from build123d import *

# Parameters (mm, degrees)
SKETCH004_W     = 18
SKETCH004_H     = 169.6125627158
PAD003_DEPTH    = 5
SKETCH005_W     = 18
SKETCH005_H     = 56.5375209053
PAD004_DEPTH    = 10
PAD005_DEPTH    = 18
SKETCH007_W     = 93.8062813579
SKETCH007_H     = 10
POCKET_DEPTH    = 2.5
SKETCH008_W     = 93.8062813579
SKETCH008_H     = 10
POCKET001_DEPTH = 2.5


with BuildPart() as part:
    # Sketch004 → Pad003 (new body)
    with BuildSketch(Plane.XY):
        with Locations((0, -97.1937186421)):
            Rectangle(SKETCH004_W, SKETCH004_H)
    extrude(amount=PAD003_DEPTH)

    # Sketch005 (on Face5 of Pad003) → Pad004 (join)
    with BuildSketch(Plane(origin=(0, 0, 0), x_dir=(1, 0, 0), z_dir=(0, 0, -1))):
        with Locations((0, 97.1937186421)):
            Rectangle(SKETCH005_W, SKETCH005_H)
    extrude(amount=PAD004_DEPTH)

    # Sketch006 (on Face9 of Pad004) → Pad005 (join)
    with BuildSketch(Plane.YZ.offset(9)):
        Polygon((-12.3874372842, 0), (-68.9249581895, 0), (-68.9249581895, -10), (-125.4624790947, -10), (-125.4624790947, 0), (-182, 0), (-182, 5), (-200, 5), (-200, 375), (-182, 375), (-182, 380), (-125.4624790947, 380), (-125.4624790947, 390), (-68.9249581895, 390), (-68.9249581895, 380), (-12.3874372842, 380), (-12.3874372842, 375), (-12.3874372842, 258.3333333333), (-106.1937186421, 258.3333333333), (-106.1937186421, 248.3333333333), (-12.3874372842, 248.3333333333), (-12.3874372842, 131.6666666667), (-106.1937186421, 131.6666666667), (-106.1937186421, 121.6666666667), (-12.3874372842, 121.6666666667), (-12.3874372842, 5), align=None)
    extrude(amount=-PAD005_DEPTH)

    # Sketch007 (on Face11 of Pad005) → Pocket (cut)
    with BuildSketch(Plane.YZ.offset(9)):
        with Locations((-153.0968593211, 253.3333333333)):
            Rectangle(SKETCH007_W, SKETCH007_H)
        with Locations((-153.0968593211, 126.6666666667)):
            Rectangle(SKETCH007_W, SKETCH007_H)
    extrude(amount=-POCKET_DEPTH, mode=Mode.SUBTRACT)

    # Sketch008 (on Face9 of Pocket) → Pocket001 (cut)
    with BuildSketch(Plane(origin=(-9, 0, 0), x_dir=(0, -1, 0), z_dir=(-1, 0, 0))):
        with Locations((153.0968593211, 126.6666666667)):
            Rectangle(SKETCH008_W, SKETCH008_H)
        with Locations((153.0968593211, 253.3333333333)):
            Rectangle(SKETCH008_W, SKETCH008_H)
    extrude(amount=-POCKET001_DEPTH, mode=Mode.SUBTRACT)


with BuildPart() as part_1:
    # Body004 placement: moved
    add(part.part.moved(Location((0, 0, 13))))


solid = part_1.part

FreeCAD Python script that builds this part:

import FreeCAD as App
import Part
import Sketcher
Q = App.Units.Quantity


def add_polygon(sketch, points):
    """Adds a closed chain of lines whose ends are joined by coincident constraints."""
    first, n = sketch.GeometryCount, len(points)
    for a, b in zip(points, points[1:] + points[:1]):
        sketch.addGeometry(Part.LineSegment(App.Vector(*a, 0), App.Vector(*b, 0)), False)
    for i in range(n):
        sketch.addConstraint(Sketcher.Constraint("Coincident", first + i, 2, first + (i + 1) % n, 1))

doc = App.newDocument("Part")
body = doc.addObject("PartDesign::Body", "Body")

# Sketch on XY plane
sketch1 = body.newObject("Sketcher::SketchObject", "Sketch")
sketch1.AttachmentSupport = (doc.getObject("XY_Plane"), [""])
sketch1.MapMode = "FlatFace"
add_polygon(sketch1, [(-9, -12.387437), (-9, -182), (9, -182), (9, -12.387437)])  # lines 0-3
sketch1.addConstraint(Sketcher.Constraint("Vertical", 0))
sketch1.addConstraint(Sketcher.Constraint("Horizontal", 1))
sketch1.addConstraint(Sketcher.Constraint("Vertical", 2))
sketch1.addConstraint(Sketcher.Constraint("Horizontal", 3))
sketch1.addConstraint(Sketcher.Constraint("DistanceX", 1, 1, 1, 2, Q("18 mm")))
sketch1.addConstraint(Sketcher.Constraint("DistanceX", 0, 2, -1, 1, Q("9 mm")))
sketch1.addConstraint(Sketcher.Constraint("DistanceY", 0, 2, -1, 1, Q("182 mm")))
sketch1.addConstraint(Sketcher.Constraint("DistanceY", 0, 2, 0, 1, Q("169.612563 mm")))
pad1 = body.newObject("PartDesign::Pad", "Pad")
pad1.Profile = sketch1
pad1.Length = 5

# Sketch on XY plane
sketch2 = body.newObject("Sketcher::SketchObject", "Sketch001")
sketch2.AttachmentSupport = (doc.getObject("XY_Plane"), [""])
sketch2.MapMode = "FlatFace"
add_polygon(sketch2, [(-9, -125.462479), (-9, -68.924958), (9, -68.924958), (9, -125.462479)])  # lines 0-3
sketch2.addConstraint(Sketcher.Constraint("Vertical", 0))
sketch2.addConstraint(Sketcher.Constraint("Horizontal", 1))
sketch2.addConstraint(Sketcher.Constraint("Vertical", 2))
sketch2.addConstraint(Sketcher.Constraint("Horizontal", 3))
sketch2.addConstraint(Sketcher.Constraint("DistanceX", 1, 1, 1, 2, Q("18 mm")))
sketch2.addConstraint(Sketcher.Constraint("DistanceX", 0, 2, -1, 1, Q("9 mm")))
sketch2.addConstraint(Sketcher.Constraint("DistanceY", 0, 1, 0, 2, Q("56.537521 mm")))
sketch2.addConstraint(Sketcher.Constraint("DistanceY", 0, 2, -1, 1, Q("68.924958 mm")))
pad2 = body.newObject("PartDesign::Pad", "Pad001")
pad2.Profile = sketch2
pad2.Length = 10
pad2.Reversed = True

# Sketch on YZ plane
sketch3 = body.newObject("Sketcher::SketchObject", "Sketch002")
sketch3.AttachmentSupport = (doc.getObject("YZ_Plane"), [""])
sketch3.MapMode = "FlatFace"
sketch3.AttachmentOffset = App.Placement(App.Vector(0, 0, 9), App.Rotation())
add_polygon(sketch3, [(-68.924958, 0), (-12.387437, 0), (-12.387437, 121.666667), (-106.193719, 121.666667), (-106.193719, 131.666667), (-12.387437, 131.666667), (-12.387437, 248.333333), (-106.193719, 248.333333), (-106.193719, 258.333333), (-12.387437, 258.333333), (-12.387437, 380), (-68.924958, 380), (-68.924958, 390), (-125.462479, 390), (-125.462479, 380), (-182, 380), (-182, 375), (-200, 375), (-200, 5), (-182, 5), (-182, 0), (-125.462479, 0), (-125.462479, -10), (-68.924958, -10)])  # lines 0-23
sketch3.addConstraint(Sketcher.Constraint("Horizontal", 0))
sketch3.addConstraint(Sketcher.Constraint("Vertical", 1))
sketch3.addConstraint(Sketcher.Constraint("Horizontal", 2))
sketch3.addConstraint(Sketcher.Constraint("Vertical", 3))
sketch3.addConstraint(Sketcher.Constraint("Horizontal", 4))
sketch3.addConstraint(Sketcher.Constraint("Vertical", 5))
sketch3.addConstraint(Sketcher.Constraint("Horizontal", 6))
sketch3.addConstraint(Sketcher.Constraint("Vertical", 7))
sketch3.addConstraint(Sketcher.Constraint("Horizontal", 8))
sketch3.addConstraint(Sketcher.Constraint("Vertical", 9))
sketch3.addConstraint(Sketcher.Constraint("Horizontal", 10))
sketch3.addConstraint(Sketcher.Constraint("Vertical", 11))
sketch3.addConstraint(Sketcher.Constraint("Horizontal", 12))
sketch3.addConstraint(Sketcher.Constraint("Vertical", 13))
sketch3.addConstraint(Sketcher.Constraint("Horizontal", 14))
sketch3.addConstraint(Sketcher.Constraint("Vertical", 15))
sketch3.addConstraint(Sketcher.Constraint("Horizontal", 16))
sketch3.addConstraint(Sketcher.Constraint("Vertical", 17))
sketch3.addConstraint(Sketcher.Constraint("Horizontal", 18))
sketch3.addConstraint(Sketcher.Constraint("Vertical", 19))
sketch3.addConstraint(Sketcher.Constraint("Horizontal", 20))
sketch3.addConstraint(Sketcher.Constraint("Vertical", 21))
sketch3.addConstraint(Sketcher.Constraint("Horizontal", 22))
sketch3.addConstraint(Sketcher.Constraint("Vertical", 23))
sketch3.addConstraint(Sketcher.Constraint("PointOnObject", 0, 2, -1))
sketch3.addConstraint(Sketcher.Constraint("PointOnObject", 19, 2, -1))
sketch3.addConstraint(Sketcher.Constraint("Horizontal", 10, 2, 13, 2))
sketch3.addConstraint(Sketcher.Constraint("Vertical", 1, 2, 4, 2))
sketch3.addConstraint(Sketcher.Constraint("Vertical", 3, 2, 6, 2))
sketch3.addConstraint(Sketcher.Constraint("Vertical", 5, 2, 8, 2))
sketch3.addConstraint(Sketcher.Constraint("Vertical", 15, 2, 18, 2))
sketch3.addConstraint(Sketcher.Constraint("Vertical", 13, 2, 20, 2))
sketch3.addConstraint(Sketcher.Constraint("Vertical", 11, 2, 22, 2))
sketch3.addConstraint(Sketcher.Constraint("Equal", 10, 12))
sketch3.addConstraint(Sketcher.Constraint("Equal", 12, 14))
sketch3.addConstraint(Sketcher.Constraint("Equal", 3, 7))
sketch3.addConstraint(Sketcher.Constraint("Equal", 1, 9))
sketch3.addConstraint(Sketcher.Constraint("Equal", 7, 11))
sketch3.addConstraint(Sketcher.Constraint("Equal", 15, 19))
sketch3.addConstraint(Sketcher.Constraint("Equal", 13, 21))
sketch3.addConstraint(Sketcher.Constraint("DistanceX", 16, 2, 16, 1, Q("18 mm")))
sketch3.addConstraint(Sketcher.Constraint("DistanceY", 3, 1, 3, 2, Q("10 mm")))
sketch3.addConstraint(Sketcher.Constraint("DistanceY", 15, 2, 15, 1, Q("5 mm")))
sketch3.addConstraint(Sketcher.Constraint("DistanceY", 17, 2, 17, 1, Q("370 mm")))
sketch3.addConstraint(Sketcher.Constraint("DistanceX", 14, 2, -1, 1, Q("182 mm")))
sketch3.addConstraint(Sketcher.Constraint("DistanceX", 0, 1, 0, 2, Q("56.537521 mm")))
sketch3.addConstraint(Sketcher.Constraint("DistanceX", 2, 2, 2, 1, Q("93.806281 mm")))
sketch3.addConstraint(Sketcher.Constraint("DistanceY", 1, 1, 1, 2, Q("121.666667 mm")))
pad3 = body.newObject("PartDesign::Pad", "Pad002")
pad3.Profile = sketch3
pad3.Length = 18
pad3.Reversed = True

# Sketch on YZ plane
sketch4 = body.newObject("Sketcher::SketchObject", "Sketch003")
sketch4.AttachmentSupport = (doc.getObject("YZ_Plane"), [""])
sketch4.MapMode = "FlatFace"
sketch4.AttachmentOffset = App.Placement(App.Vector(0, 0, 9), App.Rotation())
add_polygon(sketch4, [(-200, 258.333333), (-200, 248.333333), (-106.193719, 248.333333), (-106.193719, 258.333333)])  # lines 0-3
add_polygon(sketch4, [(-200, 131.666667), (-200, 121.666667), (-106.193719, 121.666667), (-106.193719, 131.666667)])  # lines 4-7
sketch4.addConstraint(Sketcher.Constraint("Vertical", 0))
sketch4.addConstraint(Sketcher.Constraint("Horizontal", 1))
sketch4.addConstraint(Sketcher.Constraint("Vertical", 2))
sketch4.addConstraint(Sketcher.Constraint("Horizontal", 3))
sketch4.addConstraint(Sketcher.Constraint("Vertical", 4))
sketch4.addConstraint(Sketcher.Constraint("Horizontal", 5))
sketch4.addConstraint(Sketcher.Constraint("Vertical", 6))
sketch4.addConstraint(Sketcher.Constraint("Horizontal", 7))
sketch4.addConstraint(Sketcher.Constraint("Vertical", 3, 2, 4, 2))
sketch4.addConstraint(Sketcher.Constraint("Vertical", 2, 2, 5, 2))
sketch4.addConstraint(Sketcher.Constraint("Equal", 2, 4))
sketch4.addConstraint(Sketcher.Constraint("DistanceY", 0, 2, 0, 1, Q("10 mm")))
sketch4.addConstraint(Sketcher.Constraint("DistanceX", 0, 2, -1, 1, Q("200 mm")))
sketch4.addConstraint(Sketcher.Constraint("DistanceX", 1, 1, 1, 2, Q("93.806281 mm")))
sketch4.addConstraint(Sketcher.Constraint("DistanceY", -1, 1, 0, 2, Q("248.333333 mm")))
sketch4.addConstraint(Sketcher.Constraint("DistanceY", -1, 1, 4, 2, Q("121.666667 mm")))
pocket1 = body.newObject("PartDesign::Pocket", "Pocket")
pocket1.Profile = sketch4
pocket1.Length = 2.5

# Sketch on YZ plane
sketch5 = body.newObject("Sketcher::SketchObject", "Sketch004")
sketch5.AttachmentSupport = (doc.getObject("YZ_Plane"), [""])
sketch5.MapMode = "FlatFace"
sketch5.AttachmentOffset = App.Placement(App.Vector(0, 0, -9), App.Rotation())
add_polygon(sketch5, [(-106.193719, 131.666667), (-106.193719, 121.666667), (-200, 121.666667), (-200, 131.666667)])  # lines 0-3
add_polygon(sketch5, [(-106.193719, 258.333333), (-106.193719, 248.333333), (-200, 248.333333), (-200, 258.333333)])  # lines 4-7
sketch5.addConstraint(Sketcher.Constraint("Vertical", 0))
sketch5.addConstraint(Sketcher.Constraint("Horizontal", 1))
sketch5.addConstraint(Sketcher.Constraint("Vertical", 2))
sketch5.addConstraint(Sketcher.Constraint("Horizontal", 3))
sketch5.addConstraint(Sketcher.Constraint("Vertical", 4))
sketch5.addConstraint(Sketcher.Constraint("Horizontal", 5))
sketch5.addConstraint(Sketcher.Constraint("Vertical", 6))
sketch5.addConstraint(Sketcher.Constraint("Horizontal", 7))
sketch5.addConstraint(Sketcher.Constraint("Vertical", 3, 2, 4, 2))
sketch5.addConstraint(Sketcher.Constraint("Vertical", 2, 2, 5, 2))
sketch5.addConstraint(Sketcher.Constraint("Equal", 2, 4))
sketch5.addConstraint(Sketcher.Constraint("DistanceY", 0, 2, 0, 1, Q("10 mm")))
sketch5.addConstraint(Sketcher.Constraint("DistanceX", 1, 2, -1, 1, Q("200 mm")))
sketch5.addConstraint(Sketcher.Constraint("DistanceX", 1, 2, 1, 1, Q("93.806281 mm")))
sketch5.addConstraint(Sketcher.Constraint("DistanceY", -1, 1, 0, 2, Q("121.666667 mm")))
sketch5.addConstraint(Sketcher.Constraint("DistanceY", -1, 1, 4, 2, Q("248.333333 mm")))
pocket2 = body.newObject("PartDesign::Pocket", "Pocket001")
pocket2.Profile = sketch5
pocket2.Length = 2.5
pocket2.Reversed = True
body2 = doc.addObject("PartDesign::Body", "Body001")
doc.recompute()

body.Placement = App.Placement(App.Vector(0, 0, 13), App.Rotation(App.Vector(0, 0, 1), 0))
boolean = body2.newObject("PartDesign::Boolean", "Boolean")
boolean.Type = "Fuse"
boolean.addObjects([body])

doc.recompute()
